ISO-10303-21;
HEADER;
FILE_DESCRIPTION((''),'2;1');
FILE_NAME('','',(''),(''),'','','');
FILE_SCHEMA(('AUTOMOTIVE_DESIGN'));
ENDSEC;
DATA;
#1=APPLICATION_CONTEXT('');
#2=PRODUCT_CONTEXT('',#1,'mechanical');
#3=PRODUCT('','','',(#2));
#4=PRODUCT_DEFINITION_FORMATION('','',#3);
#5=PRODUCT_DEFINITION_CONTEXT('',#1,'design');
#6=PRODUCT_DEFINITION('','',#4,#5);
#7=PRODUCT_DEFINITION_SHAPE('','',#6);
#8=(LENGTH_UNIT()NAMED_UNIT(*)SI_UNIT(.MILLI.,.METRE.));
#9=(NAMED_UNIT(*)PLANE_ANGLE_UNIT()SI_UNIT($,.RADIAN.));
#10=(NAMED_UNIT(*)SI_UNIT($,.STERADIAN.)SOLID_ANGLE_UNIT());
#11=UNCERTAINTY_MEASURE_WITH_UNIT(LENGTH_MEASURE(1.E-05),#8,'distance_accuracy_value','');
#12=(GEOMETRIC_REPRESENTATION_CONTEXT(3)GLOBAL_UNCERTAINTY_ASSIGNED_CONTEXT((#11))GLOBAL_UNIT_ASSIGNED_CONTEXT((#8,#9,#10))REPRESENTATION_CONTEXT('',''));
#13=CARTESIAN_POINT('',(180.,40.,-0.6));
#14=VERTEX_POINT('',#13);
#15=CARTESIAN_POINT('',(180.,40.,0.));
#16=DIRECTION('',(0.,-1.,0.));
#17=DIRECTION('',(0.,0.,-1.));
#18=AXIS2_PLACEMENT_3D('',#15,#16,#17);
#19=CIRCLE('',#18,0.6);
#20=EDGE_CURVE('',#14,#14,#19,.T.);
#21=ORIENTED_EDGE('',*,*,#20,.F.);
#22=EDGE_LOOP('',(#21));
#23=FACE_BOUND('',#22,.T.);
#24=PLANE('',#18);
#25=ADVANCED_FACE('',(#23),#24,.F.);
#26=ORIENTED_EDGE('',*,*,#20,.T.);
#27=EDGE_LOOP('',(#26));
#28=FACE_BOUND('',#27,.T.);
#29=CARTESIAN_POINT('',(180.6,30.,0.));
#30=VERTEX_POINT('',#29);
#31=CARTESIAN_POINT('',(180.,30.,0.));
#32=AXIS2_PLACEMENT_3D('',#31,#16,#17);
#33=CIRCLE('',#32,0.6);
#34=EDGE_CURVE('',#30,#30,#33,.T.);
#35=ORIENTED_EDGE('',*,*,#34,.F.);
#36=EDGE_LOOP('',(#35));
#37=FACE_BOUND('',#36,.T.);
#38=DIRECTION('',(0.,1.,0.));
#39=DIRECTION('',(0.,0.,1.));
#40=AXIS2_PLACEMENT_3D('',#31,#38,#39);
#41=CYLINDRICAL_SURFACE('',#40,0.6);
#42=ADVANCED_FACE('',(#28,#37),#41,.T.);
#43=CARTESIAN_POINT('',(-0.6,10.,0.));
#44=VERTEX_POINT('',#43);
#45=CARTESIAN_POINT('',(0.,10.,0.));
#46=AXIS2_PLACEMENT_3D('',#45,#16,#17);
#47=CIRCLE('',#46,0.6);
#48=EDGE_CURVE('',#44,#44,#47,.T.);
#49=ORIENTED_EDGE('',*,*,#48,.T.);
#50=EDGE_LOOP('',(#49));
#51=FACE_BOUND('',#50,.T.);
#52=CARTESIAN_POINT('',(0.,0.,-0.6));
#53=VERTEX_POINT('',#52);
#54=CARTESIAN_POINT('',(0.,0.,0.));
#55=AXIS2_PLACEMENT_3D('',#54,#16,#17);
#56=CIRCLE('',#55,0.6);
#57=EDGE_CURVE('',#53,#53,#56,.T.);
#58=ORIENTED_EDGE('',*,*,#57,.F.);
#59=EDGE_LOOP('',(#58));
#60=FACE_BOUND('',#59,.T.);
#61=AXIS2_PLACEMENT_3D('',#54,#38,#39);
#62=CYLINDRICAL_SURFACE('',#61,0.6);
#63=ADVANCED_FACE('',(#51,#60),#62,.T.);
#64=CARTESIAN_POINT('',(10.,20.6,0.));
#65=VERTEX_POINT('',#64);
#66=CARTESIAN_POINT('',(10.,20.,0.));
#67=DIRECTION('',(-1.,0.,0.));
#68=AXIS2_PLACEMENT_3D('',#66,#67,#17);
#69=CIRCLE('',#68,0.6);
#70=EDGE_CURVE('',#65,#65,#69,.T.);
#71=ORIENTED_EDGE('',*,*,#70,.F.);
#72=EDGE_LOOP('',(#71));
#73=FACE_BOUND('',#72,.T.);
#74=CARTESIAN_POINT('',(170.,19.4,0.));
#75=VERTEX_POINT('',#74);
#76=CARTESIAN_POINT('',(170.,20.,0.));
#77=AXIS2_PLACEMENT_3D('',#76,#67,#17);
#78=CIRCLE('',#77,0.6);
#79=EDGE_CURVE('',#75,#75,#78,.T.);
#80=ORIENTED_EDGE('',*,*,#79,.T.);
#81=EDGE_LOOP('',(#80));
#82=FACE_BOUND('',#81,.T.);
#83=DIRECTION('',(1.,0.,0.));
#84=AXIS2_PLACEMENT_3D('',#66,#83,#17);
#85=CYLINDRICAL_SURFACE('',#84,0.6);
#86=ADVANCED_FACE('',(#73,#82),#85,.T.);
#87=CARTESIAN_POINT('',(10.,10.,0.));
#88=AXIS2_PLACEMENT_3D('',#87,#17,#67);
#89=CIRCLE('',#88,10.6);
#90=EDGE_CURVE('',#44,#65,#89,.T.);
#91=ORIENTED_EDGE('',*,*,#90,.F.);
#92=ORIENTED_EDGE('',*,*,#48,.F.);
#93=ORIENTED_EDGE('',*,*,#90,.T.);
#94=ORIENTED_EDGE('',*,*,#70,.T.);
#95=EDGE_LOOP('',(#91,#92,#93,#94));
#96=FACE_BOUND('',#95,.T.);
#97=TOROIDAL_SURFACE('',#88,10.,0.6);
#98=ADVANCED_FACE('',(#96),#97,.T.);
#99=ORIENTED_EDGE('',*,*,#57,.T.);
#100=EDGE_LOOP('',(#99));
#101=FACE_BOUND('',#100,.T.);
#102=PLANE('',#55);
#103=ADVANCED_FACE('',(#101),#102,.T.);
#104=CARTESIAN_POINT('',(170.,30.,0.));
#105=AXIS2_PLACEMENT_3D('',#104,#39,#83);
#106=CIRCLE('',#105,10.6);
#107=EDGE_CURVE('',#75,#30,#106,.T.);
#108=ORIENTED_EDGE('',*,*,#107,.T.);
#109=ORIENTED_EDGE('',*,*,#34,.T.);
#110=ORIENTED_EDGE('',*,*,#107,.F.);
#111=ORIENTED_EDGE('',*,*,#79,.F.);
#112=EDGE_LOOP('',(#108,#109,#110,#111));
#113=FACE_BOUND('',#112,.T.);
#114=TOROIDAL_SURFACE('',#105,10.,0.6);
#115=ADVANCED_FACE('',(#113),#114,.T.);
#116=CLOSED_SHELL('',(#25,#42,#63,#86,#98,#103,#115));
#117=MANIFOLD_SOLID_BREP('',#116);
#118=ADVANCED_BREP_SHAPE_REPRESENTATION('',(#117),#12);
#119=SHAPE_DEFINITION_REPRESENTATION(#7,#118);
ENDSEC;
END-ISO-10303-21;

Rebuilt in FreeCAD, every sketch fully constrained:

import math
import FreeCAD as App
import Part
import Sketcher

V = App.Vector

doc = App.newDocument("Part")
params = doc.addObject("Spreadsheet::Sheet", "Params")
for row, (alias, value) in enumerate([
    ("sketch1_diameter", "1.2 mm"),
    ("sketch2_radius", "10 mm"),
    ("sketch2_width", "160 mm"),
    ("sketch2_height", "10 mm"),
], start=1):
    params.set(f"A{row}", alias)
    params.set(f"B{row}", "=" + value)
    params.setAlias(f"B{row}", alias)

body = doc.addObject("PartDesign::Body", "Body")

sketch1 = body.newObject("Sketcher::SketchObject", "Sketch")
sketch1.AttachmentSupport = (doc.getObject("XZ_Plane"), [""])
sketch1.MapMode = "FlatFace"
sketch1.addGeometry(Part.Circle(V(0, 0, 0), V(0, 0, 1), 0.6), False)
sketch1.addConstraint([
    Sketcher.Constraint("Coincident", 0, 3, -1, 1),
    Sketcher.Constraint("Diameter", 0, 1.2),
])
sketch1.setExpression("Constraints[1]", "Params.sketch1_diameter")

sketch2 = body.newObject("Sketcher::SketchObject", "Sketch001")
sketch2.AttachmentSupport = (doc.getObject("XY_Plane"), [""])
sketch2.MapMode = "FlatFace"
sketch2.addGeometry([
    Part.LineSegment(V(0, 0, 0), V(0, 10, 0)),
    Part.ArcOfCircle(Part.Circle(V(10, 10, 0), V(0, 0, 1), 10), math.radians(90), math.radians(180)),
    Part.LineSegment(V(10, 20, 0), V(170, 20, 0)),
    Part.ArcOfCircle(Part.Circle(V(170, 30, 0), V(0, 0, 1), 10), math.radians(-90), math.radians(0)),
    Part.LineSegment(V(180, 30, 0), V(180, 40, 0)),
], False)
sketch2.addConstraint([
    Sketcher.Constraint("Tangent", 0, 2, 1, 2),
    Sketcher.Constraint("Tangent", 1, 1, 2, 1),
    Sketcher.Constraint("Tangent", 2, 2, 3, 1),
    Sketcher.Constraint("Tangent", 3, 2, 4, 1),
    Sketcher.Constraint("Vertical", 0),
    Sketcher.Constraint("Horizontal", 2),
    Sketcher.Constraint("Vertical", 4),
    Sketcher.Constraint("Coincident", 0, 1, -1, 1),
    Sketcher.Constraint("Equal", 1, 3),
    Sketcher.Constraint("Equal", 0, 4),
    Sketcher.Constraint("Radius", 1, 10.0),
    Sketcher.Constraint("DistanceX", 2, 1, 2, 2, 160.0),
    Sketcher.Constraint("DistanceY", 0, 1, 0, 2, 10.0),
])
sketch2.setExpression("Constraints[10]", "Params.sketch2_radius")
sketch2.setExpression("Constraints[11]", "Params.sketch2_width")
sketch2.setExpression("Constraints[12]", "Params.sketch2_height")
doc.recompute()

additivepipe = body.newObject("PartDesign::AdditivePipe", "AdditivePipe")
additivepipe.Profile = sketch1
additivepipe.Spine = (sketch2, ["Edge1", "Edge2", "Edge3", "Edge4", "Edge5"])

doc.recompute()
